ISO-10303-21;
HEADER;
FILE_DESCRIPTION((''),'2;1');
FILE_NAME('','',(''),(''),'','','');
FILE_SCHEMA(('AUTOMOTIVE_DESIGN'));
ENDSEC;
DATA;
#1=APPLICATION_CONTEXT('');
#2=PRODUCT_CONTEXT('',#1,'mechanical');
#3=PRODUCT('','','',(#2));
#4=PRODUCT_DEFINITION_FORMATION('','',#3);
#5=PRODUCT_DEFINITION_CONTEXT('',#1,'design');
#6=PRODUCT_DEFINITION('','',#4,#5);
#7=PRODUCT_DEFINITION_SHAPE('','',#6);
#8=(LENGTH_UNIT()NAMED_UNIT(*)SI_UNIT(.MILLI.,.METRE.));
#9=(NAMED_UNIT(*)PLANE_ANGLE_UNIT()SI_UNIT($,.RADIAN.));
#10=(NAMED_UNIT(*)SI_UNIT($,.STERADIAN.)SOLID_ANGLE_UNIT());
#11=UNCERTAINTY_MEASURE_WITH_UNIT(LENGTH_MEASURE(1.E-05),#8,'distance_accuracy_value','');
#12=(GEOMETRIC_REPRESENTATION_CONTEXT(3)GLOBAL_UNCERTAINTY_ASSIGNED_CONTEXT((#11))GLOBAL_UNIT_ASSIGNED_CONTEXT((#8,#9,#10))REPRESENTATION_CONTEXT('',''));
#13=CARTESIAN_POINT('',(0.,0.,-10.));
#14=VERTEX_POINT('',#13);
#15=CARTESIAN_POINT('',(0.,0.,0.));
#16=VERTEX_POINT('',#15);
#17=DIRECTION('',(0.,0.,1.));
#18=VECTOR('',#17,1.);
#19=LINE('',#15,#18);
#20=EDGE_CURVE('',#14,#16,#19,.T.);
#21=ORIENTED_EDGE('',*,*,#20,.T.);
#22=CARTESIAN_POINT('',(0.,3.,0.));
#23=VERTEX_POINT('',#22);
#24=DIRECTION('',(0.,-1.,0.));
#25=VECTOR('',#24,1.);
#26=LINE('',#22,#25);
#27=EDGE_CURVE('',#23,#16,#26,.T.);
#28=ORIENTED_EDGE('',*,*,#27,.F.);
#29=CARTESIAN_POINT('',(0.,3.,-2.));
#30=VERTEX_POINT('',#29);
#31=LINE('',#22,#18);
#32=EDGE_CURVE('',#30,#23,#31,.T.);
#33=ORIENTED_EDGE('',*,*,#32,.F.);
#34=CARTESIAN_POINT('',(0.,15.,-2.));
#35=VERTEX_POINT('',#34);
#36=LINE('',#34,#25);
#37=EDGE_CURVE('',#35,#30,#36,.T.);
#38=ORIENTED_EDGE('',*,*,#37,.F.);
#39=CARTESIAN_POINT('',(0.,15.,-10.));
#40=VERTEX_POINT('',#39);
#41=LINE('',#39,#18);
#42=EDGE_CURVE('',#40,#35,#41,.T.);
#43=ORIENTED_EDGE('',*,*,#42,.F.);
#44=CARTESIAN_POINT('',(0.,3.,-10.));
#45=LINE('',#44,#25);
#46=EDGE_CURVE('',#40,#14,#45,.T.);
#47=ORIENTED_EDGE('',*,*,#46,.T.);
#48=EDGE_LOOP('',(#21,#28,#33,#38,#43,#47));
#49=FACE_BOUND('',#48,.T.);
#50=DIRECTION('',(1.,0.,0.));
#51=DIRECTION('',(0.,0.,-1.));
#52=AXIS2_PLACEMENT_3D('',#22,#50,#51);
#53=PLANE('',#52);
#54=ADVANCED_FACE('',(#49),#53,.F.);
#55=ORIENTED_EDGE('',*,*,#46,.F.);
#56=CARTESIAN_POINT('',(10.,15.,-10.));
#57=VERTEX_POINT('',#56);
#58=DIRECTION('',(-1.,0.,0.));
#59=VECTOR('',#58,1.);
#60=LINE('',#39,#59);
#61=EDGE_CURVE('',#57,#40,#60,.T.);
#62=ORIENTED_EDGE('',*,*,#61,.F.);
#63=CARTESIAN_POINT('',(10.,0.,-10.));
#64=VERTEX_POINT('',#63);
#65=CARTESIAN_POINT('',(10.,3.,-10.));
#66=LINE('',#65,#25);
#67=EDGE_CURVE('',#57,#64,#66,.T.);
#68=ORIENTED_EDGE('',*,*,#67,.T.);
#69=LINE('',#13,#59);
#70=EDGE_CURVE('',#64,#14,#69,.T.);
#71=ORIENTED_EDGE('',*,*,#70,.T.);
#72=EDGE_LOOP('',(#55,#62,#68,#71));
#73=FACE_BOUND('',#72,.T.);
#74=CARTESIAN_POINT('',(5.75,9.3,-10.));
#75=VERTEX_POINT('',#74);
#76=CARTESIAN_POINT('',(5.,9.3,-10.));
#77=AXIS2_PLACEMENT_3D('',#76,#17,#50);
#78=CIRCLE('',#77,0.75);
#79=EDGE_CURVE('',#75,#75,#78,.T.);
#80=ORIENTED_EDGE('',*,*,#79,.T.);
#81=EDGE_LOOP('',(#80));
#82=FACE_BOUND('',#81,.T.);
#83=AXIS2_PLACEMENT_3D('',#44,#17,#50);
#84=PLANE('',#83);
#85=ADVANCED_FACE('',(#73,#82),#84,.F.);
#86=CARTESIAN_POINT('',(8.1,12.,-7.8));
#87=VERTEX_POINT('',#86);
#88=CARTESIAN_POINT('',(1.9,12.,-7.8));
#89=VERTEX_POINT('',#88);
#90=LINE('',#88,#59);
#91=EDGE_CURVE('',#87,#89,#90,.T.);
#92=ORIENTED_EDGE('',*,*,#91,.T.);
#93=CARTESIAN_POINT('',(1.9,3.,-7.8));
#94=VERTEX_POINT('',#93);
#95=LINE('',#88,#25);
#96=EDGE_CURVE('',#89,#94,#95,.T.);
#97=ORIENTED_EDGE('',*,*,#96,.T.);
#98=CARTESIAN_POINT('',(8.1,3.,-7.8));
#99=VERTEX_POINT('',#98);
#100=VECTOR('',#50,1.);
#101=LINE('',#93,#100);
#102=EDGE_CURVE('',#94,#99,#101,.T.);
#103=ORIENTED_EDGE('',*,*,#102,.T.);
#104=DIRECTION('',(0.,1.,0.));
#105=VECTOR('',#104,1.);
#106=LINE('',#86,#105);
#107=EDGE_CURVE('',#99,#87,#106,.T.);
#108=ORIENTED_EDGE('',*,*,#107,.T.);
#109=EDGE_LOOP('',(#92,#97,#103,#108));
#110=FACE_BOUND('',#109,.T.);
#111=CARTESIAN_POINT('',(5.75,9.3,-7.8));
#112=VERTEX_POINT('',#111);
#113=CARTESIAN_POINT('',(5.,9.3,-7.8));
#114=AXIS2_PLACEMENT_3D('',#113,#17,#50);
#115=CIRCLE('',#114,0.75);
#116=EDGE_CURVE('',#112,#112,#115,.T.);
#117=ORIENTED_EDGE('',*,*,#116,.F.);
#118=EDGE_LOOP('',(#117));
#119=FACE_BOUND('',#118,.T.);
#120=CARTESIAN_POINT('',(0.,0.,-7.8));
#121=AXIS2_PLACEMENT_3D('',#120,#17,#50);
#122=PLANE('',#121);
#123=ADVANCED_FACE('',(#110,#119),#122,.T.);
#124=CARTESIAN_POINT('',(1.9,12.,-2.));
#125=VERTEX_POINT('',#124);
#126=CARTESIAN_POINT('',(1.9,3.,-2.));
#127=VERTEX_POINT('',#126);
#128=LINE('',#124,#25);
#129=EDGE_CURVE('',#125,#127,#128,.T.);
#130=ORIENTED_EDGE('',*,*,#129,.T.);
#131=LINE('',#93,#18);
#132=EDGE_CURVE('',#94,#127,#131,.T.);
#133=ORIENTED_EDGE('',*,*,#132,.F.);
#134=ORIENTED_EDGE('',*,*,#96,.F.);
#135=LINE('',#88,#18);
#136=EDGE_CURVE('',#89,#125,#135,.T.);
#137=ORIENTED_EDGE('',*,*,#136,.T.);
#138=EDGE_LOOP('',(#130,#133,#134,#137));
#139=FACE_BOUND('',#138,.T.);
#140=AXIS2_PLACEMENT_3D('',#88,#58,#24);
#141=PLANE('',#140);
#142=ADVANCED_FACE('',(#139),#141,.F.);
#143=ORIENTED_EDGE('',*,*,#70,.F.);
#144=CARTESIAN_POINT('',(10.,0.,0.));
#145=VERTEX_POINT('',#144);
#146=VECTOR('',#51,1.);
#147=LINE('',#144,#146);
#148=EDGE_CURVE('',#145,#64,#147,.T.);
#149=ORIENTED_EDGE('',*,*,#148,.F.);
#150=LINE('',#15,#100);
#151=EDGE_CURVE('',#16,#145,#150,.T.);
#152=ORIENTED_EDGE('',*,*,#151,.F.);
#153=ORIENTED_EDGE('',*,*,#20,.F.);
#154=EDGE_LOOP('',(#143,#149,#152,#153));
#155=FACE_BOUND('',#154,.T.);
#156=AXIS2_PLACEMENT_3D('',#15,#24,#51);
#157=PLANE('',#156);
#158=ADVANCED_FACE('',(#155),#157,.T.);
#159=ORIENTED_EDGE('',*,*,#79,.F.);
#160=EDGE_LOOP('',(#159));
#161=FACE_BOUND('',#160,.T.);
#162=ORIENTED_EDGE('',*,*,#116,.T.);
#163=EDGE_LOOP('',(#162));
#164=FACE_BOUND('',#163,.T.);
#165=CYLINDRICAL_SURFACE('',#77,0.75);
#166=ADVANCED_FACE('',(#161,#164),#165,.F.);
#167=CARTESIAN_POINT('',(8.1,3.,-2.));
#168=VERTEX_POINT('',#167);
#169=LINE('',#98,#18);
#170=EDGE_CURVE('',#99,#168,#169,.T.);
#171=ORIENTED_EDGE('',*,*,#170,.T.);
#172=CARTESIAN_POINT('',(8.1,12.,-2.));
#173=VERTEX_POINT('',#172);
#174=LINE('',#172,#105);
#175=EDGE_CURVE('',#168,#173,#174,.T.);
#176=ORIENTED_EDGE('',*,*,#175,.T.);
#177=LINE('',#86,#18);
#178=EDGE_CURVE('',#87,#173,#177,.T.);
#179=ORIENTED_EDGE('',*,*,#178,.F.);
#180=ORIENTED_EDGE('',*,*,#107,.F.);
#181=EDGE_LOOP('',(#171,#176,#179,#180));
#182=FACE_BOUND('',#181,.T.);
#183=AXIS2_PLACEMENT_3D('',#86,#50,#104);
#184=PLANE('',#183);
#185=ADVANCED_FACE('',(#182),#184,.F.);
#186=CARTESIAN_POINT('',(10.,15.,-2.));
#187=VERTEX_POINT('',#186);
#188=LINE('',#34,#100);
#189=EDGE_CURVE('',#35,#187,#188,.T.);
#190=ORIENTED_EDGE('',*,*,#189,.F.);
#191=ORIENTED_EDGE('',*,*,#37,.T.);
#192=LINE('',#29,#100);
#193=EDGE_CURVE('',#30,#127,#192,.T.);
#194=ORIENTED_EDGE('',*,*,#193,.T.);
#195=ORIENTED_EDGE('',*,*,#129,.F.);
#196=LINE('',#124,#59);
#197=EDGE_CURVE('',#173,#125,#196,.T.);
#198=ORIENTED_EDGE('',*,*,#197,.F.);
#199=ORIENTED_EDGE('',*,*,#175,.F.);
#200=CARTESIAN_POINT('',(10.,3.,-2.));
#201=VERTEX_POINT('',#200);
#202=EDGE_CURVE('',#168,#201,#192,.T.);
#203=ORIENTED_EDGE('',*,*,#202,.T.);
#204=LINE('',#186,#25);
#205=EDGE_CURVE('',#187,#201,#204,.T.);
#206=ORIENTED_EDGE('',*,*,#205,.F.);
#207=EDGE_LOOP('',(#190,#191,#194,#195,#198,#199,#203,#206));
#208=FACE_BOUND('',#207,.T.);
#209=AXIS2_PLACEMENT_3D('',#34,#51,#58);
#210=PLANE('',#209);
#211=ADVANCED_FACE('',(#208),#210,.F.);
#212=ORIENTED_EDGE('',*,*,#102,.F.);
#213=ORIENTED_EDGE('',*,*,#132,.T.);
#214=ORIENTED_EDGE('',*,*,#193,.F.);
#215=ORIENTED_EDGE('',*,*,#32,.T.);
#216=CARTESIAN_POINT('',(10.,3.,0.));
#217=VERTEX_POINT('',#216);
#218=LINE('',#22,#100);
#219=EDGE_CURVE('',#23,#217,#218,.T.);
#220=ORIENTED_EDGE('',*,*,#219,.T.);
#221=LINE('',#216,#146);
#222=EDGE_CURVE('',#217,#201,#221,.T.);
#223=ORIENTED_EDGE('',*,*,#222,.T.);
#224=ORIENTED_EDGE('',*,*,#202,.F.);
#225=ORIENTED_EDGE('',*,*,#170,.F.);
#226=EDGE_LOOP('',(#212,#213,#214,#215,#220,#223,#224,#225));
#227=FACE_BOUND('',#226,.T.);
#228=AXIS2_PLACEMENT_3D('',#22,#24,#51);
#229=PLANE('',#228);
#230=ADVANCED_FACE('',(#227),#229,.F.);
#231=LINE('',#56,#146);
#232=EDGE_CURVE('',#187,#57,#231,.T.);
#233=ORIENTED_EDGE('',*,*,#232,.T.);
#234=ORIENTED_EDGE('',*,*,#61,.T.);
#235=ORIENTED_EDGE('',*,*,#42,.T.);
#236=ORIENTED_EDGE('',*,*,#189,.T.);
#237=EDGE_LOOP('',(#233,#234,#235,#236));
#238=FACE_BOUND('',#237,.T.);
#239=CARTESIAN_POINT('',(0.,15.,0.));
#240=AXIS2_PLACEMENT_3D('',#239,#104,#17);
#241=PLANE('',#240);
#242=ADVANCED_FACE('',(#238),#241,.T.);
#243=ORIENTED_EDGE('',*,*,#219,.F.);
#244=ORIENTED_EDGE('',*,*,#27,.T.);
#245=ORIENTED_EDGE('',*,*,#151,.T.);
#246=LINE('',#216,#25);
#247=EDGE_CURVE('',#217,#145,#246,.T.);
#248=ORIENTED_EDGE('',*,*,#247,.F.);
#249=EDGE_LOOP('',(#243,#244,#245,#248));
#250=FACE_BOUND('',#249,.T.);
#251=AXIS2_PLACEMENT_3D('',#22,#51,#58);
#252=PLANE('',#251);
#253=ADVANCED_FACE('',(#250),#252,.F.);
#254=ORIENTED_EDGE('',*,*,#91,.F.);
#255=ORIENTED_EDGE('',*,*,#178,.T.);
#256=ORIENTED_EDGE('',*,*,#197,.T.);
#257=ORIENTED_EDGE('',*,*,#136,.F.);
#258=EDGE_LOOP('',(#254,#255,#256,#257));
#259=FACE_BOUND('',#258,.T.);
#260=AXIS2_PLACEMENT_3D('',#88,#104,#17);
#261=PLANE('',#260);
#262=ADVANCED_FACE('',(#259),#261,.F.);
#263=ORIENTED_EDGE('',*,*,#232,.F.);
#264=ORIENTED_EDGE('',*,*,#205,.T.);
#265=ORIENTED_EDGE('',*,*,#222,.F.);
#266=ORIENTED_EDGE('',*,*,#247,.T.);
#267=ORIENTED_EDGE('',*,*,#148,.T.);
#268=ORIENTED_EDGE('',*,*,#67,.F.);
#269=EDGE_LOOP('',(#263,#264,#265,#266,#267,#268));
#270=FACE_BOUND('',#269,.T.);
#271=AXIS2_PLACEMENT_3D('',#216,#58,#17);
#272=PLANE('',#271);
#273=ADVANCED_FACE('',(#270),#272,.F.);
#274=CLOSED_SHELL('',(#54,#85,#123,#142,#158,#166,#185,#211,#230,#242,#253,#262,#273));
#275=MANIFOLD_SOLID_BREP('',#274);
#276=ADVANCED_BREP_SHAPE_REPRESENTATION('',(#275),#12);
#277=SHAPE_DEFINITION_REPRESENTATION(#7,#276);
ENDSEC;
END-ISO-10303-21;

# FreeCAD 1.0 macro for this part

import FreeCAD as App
import Part
import Sketcher
from FreeCAD import Vector


def add_polygon(sketch, points):
    """Adds a closed chain of lines whose ends are joined by coincident constraints."""
    first, n = sketch.GeometryCount, len(points)
    for a, b in zip(points, points[1:] + points[:1]):
        sketch.addGeometry(Part.LineSegment(App.Vector(*a, 0), App.Vector(*b, 0)), False)
    for i in range(n):
        sketch.addConstraint(Sketcher.Constraint("Coincident", first + i, 2, first + (i + 1) % n, 1))

doc = App.newDocument("Part")
params = doc.addObject("Spreadsheet::Sheet", "Params")
for row, (alias, value) in enumerate([
    ("sketch1_width", "10 mm"),
    ("pad1_length", "3 mm"),
    ("sketch2_width", "10 mm"),
    ("sketch2_height", "8 mm"),
    ("pad2_length", "12 mm"),
    ("sketch3_height", "9 mm"),
    ("sketch3_width", "6.2 mm"),
    ("pocket1_length", "5.8 mm"),
    ("sketch4_diameter", "1.5 mm"),
], start=1):
    params.set(f"A{row}", alias)
    params.set(f"B{row}", "=" + value)
    params.setAlias(f"B{row}", alias)

body = doc.addObject("PartDesign::Body", "Body")

sketch1 = body.newObject("Sketcher::SketchObject", "Sketch")
sketch1.AttachmentSupport = (doc.getObject("XZ_Plane"), [""])
sketch1.MapMode = "FlatFace"
add_polygon(sketch1, [(0, -10), (0, 0), (10, 0), (10, -10)])
sketch1.addConstraint(Sketcher.Constraint("Vertical", 0))
sketch1.addConstraint(Sketcher.Constraint("Horizontal", 1))
sketch1.addConstraint(Sketcher.Constraint("Vertical", 2))
sketch1.addConstraint(Sketcher.Constraint("Horizontal", 3))
sketch1.addConstraint(Sketcher.Constraint("Coincident", 0, 2, -1, 1))
sketch1.addConstraint(Sketcher.Constraint("Equal", 3, 0))
sketch1.addConstraint(Sketcher.Constraint("DistanceX", 1, 1, 1, 2, 10.0))
sketch1.setExpression("Constraints[10]", "Params.sketch1_width")
pad1 = body.newObject("PartDesign::Pad", "Pad")
pad1.Profile = sketch1
pad1.setExpression("Length", "Params.pad1_length")
pad1.Reversed = True

sketch2 = body.newObject("Sketcher::SketchObject", "Sketch001")
sketch2.AttachmentSupport = (doc.getObject("XZ_Plane"), [""])
sketch2.MapMode = "FlatFace"
sketch2.AttachmentOffset = App.Placement(Vector(0, 0, -3), App.Rotation())
add_polygon(sketch2, [(0, -10), (0, -2), (10, -2), (10, -10)])
sketch2.addConstraint(Sketcher.Constraint("Vertical", 0))
sketch2.addConstraint(Sketcher.Constraint("Horizontal", 1))
sketch2.addConstraint(Sketcher.Constraint("Vertical", 2))
sketch2.addConstraint(Sketcher.Constraint("Horizontal", 3))
sketch2.addConstraint(Sketcher.Constraint("PointOnObject", 0, 2, -2))
sketch2.addConstraint(Sketcher.Constraint("DistanceX", 1, 1, 1, 2, 10.0))
sketch2.addConstraint(Sketcher.Constraint("DistanceY", 0, 1, 0, 2, 8.0))
sketch2.addConstraint(Sketcher.Constraint("DistanceY", 0, 2, -1, 1, 2.0))
sketch2.setExpression("Constraints[9]", "Params.sketch2_width")
sketch2.setExpression("Constraints[10]", "Params.sketch2_height")
pad2 = body.newObject("PartDesign::Pad", "Pad001")
pad2.Profile = sketch2
pad2.setExpression("Length", "Params.pad2_length")
pad2.Reversed = True

sketch3 = body.newObject("Sketcher::SketchObject", "Sketch002")
sketch3.AttachmentSupport = (doc.getObject("XY_Plane"), [""])
sketch3.MapMode = "FlatFace"
sketch3.AttachmentOffset = App.Placement(Vector(0, 0, -2), App.Rotation())
add_polygon(sketch3, [(2, 12), (2, 3), (8, 3), (8, 12)])
sketch3.addConstraint(Sketcher.Constraint("Vertical", 0))
sketch3.addConstraint(Sketcher.Constraint("Horizontal", 1))
sketch3.addConstraint(Sketcher.Constraint("Vertical", 2))
sketch3.addConstraint(Sketcher.Constraint("Horizontal", 3))
sketch3.addConstraint(Sketcher.Constraint("DistanceY", 0, 2, 0, 1, 9.0))
sketch3.addConstraint(Sketcher.Constraint("DistanceX", 1, 1, 1, 2, 6.2))
sketch3.addConstraint(Sketcher.Constraint("DistanceY", -1, 1, 0, 2, 3.0))
sketch3.addConstraint(Sketcher.Constraint("DistanceX", -1, 1, 0, 2, 1.9))
sketch3.setExpression("Constraints[8]", "Params.sketch3_height")
sketch3.setExpression("Constraints[9]", "Params.sketch3_width")
pocket1 = body.newObject("PartDesign::Pocket", "Pocket")
pocket1.Profile = sketch3
pocket1.setExpression("Length", "Params.pocket1_length")

sketch4 = body.newObject("Sketcher::SketchObject", "Sketch003")
sketch4.AttachmentSupport = (doc.getObject("XY_Plane"), [""])
sketch4.MapMode = "FlatFace"
sketch4.AttachmentOffset = App.Placement(Vector(0, 0, -7.8), App.Rotation())
sketch4.addGeometry(Part.Circle(Vector(5, 9.3, 0), Vector(0, 0, 1), 0.8), False)
sketch4.addConstraint(Sketcher.Constraint("Diameter", 0, 1.5))
sketch4.addConstraint(Sketcher.Constraint("DistanceX", -1, 1, 0, 3, 5.0))
sketch4.addConstraint(Sketcher.Constraint("DistanceY", -1, 1, 0, 3, 9.3))
sketch4.setExpression("Constraints[0]", "Params.sketch4_diameter")
pocket2 = body.newObject("PartDesign::Pocket", "Pocket001")
pocket2.Profile = sketch4
pocket2.Type = "ThroughAll"

doc.recompute()
